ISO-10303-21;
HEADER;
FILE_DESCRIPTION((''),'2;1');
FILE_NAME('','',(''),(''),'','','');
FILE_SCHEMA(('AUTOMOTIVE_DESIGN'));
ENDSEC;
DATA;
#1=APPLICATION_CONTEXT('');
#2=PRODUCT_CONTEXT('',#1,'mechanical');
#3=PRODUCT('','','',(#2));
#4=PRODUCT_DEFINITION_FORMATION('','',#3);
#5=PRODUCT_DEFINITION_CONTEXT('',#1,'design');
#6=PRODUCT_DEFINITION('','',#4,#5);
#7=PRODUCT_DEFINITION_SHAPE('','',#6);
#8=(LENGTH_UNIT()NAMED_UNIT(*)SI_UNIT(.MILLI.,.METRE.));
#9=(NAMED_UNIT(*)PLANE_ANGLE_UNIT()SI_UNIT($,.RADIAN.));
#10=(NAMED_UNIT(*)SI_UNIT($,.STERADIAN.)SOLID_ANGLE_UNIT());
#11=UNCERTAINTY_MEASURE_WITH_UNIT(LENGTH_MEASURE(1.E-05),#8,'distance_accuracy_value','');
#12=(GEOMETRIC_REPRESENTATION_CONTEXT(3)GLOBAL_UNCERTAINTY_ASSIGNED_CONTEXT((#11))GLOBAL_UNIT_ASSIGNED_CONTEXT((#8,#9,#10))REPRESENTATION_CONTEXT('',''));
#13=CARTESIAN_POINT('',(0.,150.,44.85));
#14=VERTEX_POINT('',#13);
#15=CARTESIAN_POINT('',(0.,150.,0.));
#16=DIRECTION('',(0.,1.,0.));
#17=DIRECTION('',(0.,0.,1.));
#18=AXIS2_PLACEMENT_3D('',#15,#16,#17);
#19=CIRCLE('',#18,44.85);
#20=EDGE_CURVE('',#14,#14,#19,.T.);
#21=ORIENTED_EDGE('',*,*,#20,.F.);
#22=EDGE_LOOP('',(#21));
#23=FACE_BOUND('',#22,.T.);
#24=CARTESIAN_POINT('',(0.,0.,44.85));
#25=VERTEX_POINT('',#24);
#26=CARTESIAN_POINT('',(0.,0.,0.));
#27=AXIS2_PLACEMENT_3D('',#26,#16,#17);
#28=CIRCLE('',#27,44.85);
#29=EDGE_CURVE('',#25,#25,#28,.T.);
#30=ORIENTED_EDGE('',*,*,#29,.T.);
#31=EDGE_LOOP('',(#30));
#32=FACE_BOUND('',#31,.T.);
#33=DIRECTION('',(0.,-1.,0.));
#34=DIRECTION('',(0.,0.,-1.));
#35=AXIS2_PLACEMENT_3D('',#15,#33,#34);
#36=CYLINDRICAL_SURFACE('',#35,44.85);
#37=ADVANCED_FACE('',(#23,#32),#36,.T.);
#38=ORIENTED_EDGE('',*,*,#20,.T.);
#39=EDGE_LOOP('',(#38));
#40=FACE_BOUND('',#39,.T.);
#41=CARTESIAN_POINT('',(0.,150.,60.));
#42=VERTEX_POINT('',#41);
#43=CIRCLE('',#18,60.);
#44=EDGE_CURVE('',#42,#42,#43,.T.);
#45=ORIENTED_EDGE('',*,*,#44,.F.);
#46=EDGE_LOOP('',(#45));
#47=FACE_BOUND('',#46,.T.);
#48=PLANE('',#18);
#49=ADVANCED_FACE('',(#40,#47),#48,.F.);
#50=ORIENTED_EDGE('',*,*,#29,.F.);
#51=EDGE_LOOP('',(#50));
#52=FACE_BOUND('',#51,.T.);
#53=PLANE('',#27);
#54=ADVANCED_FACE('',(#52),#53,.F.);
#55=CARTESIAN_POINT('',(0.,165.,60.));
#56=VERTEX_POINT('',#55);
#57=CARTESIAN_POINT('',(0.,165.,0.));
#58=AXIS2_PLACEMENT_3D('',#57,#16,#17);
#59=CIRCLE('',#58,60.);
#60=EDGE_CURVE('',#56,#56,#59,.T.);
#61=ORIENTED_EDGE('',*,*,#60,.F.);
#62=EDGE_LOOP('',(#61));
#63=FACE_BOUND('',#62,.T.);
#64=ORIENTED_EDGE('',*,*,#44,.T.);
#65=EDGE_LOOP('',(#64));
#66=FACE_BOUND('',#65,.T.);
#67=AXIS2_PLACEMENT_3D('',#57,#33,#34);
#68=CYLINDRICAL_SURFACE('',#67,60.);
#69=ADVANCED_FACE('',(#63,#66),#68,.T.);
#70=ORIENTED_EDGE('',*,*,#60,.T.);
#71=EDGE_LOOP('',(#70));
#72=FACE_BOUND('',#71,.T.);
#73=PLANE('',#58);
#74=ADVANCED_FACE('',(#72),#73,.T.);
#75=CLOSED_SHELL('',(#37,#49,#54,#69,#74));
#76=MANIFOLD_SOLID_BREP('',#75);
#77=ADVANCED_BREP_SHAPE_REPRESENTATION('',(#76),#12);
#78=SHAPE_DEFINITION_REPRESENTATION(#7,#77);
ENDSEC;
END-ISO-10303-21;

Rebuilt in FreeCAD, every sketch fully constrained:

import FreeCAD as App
import Part
import Sketcher

V = App.Vector
Q = App.Units.Quantity

doc = App.newDocument("Part")
params = doc.addObject("Spreadsheet::Sheet", "Params")
for row, (alias, value) in enumerate([
    ("sketch1_diameter", "89.7 mm"),
    ("pad1_length", "150 mm"),
    ("sketch2_diameter", "120 mm"),
    ("pad2_length", "15 mm"),
], start=1):
    params.set(f"A{row}", alias)
    params.set(f"B{row}", "=" + value)
    params.setAlias(f"B{row}", alias)

body = doc.addObject("PartDesign::Body", "Body")

sketch1 = body.newObject("Sketcher::SketchObject", "Sketch")
sketch1.AttachmentSupport = (doc.getObject("XZ_Plane"), [""])
sketch1.MapMode = "FlatFace"
sketch1.addGeometry(Part.Circle(V(0, 0, 0), V(0, 0, 1), 44.85), False)
sketch1.addConstraint(Sketcher.Constraint("Coincident", 0, 3, -1, 1))
sketch1.addConstraint(Sketcher.Constraint("Diameter", 0, Q("89.7 mm")))
sketch1.setExpression("Constraints[1]", "Params.sketch1_diameter")
pad1 = body.newObject("PartDesign::Pad", "Pad")
pad1.Profile = sketch1
pad1.setExpression("Length", "Params.pad1_length")
pad1.Reversed = True

sketch2 = body.newObject("Sketcher::SketchObject", "Sketch001")
sketch2.AttachmentSupport = (doc.getObject("XZ_Plane"), [""])
sketch2.MapMode = "FlatFace"
sketch2.AttachmentOffset = App.Placement(V(0, 0, -150), App.Rotation())
sketch2.addGeometry(Part.Circle(V(0, 0, 0), V(0, 0, 1), 60), False)
sketch2.addConstraint(Sketcher.Constraint("Coincident", 0, 3, -1, 1))
sketch2.addConstraint(Sketcher.Constraint("Diameter", 0, Q("120 mm")))
sketch2.setExpression("Constraints[1]", "Params.sketch2_diameter")
pad2 = body.newObject("PartDesign::Pad", "Pad001")
pad2.Profile = sketch2
pad2.setExpression("Length", "Params.pad2_length")
pad2.Reversed = True

doc.recompute()
